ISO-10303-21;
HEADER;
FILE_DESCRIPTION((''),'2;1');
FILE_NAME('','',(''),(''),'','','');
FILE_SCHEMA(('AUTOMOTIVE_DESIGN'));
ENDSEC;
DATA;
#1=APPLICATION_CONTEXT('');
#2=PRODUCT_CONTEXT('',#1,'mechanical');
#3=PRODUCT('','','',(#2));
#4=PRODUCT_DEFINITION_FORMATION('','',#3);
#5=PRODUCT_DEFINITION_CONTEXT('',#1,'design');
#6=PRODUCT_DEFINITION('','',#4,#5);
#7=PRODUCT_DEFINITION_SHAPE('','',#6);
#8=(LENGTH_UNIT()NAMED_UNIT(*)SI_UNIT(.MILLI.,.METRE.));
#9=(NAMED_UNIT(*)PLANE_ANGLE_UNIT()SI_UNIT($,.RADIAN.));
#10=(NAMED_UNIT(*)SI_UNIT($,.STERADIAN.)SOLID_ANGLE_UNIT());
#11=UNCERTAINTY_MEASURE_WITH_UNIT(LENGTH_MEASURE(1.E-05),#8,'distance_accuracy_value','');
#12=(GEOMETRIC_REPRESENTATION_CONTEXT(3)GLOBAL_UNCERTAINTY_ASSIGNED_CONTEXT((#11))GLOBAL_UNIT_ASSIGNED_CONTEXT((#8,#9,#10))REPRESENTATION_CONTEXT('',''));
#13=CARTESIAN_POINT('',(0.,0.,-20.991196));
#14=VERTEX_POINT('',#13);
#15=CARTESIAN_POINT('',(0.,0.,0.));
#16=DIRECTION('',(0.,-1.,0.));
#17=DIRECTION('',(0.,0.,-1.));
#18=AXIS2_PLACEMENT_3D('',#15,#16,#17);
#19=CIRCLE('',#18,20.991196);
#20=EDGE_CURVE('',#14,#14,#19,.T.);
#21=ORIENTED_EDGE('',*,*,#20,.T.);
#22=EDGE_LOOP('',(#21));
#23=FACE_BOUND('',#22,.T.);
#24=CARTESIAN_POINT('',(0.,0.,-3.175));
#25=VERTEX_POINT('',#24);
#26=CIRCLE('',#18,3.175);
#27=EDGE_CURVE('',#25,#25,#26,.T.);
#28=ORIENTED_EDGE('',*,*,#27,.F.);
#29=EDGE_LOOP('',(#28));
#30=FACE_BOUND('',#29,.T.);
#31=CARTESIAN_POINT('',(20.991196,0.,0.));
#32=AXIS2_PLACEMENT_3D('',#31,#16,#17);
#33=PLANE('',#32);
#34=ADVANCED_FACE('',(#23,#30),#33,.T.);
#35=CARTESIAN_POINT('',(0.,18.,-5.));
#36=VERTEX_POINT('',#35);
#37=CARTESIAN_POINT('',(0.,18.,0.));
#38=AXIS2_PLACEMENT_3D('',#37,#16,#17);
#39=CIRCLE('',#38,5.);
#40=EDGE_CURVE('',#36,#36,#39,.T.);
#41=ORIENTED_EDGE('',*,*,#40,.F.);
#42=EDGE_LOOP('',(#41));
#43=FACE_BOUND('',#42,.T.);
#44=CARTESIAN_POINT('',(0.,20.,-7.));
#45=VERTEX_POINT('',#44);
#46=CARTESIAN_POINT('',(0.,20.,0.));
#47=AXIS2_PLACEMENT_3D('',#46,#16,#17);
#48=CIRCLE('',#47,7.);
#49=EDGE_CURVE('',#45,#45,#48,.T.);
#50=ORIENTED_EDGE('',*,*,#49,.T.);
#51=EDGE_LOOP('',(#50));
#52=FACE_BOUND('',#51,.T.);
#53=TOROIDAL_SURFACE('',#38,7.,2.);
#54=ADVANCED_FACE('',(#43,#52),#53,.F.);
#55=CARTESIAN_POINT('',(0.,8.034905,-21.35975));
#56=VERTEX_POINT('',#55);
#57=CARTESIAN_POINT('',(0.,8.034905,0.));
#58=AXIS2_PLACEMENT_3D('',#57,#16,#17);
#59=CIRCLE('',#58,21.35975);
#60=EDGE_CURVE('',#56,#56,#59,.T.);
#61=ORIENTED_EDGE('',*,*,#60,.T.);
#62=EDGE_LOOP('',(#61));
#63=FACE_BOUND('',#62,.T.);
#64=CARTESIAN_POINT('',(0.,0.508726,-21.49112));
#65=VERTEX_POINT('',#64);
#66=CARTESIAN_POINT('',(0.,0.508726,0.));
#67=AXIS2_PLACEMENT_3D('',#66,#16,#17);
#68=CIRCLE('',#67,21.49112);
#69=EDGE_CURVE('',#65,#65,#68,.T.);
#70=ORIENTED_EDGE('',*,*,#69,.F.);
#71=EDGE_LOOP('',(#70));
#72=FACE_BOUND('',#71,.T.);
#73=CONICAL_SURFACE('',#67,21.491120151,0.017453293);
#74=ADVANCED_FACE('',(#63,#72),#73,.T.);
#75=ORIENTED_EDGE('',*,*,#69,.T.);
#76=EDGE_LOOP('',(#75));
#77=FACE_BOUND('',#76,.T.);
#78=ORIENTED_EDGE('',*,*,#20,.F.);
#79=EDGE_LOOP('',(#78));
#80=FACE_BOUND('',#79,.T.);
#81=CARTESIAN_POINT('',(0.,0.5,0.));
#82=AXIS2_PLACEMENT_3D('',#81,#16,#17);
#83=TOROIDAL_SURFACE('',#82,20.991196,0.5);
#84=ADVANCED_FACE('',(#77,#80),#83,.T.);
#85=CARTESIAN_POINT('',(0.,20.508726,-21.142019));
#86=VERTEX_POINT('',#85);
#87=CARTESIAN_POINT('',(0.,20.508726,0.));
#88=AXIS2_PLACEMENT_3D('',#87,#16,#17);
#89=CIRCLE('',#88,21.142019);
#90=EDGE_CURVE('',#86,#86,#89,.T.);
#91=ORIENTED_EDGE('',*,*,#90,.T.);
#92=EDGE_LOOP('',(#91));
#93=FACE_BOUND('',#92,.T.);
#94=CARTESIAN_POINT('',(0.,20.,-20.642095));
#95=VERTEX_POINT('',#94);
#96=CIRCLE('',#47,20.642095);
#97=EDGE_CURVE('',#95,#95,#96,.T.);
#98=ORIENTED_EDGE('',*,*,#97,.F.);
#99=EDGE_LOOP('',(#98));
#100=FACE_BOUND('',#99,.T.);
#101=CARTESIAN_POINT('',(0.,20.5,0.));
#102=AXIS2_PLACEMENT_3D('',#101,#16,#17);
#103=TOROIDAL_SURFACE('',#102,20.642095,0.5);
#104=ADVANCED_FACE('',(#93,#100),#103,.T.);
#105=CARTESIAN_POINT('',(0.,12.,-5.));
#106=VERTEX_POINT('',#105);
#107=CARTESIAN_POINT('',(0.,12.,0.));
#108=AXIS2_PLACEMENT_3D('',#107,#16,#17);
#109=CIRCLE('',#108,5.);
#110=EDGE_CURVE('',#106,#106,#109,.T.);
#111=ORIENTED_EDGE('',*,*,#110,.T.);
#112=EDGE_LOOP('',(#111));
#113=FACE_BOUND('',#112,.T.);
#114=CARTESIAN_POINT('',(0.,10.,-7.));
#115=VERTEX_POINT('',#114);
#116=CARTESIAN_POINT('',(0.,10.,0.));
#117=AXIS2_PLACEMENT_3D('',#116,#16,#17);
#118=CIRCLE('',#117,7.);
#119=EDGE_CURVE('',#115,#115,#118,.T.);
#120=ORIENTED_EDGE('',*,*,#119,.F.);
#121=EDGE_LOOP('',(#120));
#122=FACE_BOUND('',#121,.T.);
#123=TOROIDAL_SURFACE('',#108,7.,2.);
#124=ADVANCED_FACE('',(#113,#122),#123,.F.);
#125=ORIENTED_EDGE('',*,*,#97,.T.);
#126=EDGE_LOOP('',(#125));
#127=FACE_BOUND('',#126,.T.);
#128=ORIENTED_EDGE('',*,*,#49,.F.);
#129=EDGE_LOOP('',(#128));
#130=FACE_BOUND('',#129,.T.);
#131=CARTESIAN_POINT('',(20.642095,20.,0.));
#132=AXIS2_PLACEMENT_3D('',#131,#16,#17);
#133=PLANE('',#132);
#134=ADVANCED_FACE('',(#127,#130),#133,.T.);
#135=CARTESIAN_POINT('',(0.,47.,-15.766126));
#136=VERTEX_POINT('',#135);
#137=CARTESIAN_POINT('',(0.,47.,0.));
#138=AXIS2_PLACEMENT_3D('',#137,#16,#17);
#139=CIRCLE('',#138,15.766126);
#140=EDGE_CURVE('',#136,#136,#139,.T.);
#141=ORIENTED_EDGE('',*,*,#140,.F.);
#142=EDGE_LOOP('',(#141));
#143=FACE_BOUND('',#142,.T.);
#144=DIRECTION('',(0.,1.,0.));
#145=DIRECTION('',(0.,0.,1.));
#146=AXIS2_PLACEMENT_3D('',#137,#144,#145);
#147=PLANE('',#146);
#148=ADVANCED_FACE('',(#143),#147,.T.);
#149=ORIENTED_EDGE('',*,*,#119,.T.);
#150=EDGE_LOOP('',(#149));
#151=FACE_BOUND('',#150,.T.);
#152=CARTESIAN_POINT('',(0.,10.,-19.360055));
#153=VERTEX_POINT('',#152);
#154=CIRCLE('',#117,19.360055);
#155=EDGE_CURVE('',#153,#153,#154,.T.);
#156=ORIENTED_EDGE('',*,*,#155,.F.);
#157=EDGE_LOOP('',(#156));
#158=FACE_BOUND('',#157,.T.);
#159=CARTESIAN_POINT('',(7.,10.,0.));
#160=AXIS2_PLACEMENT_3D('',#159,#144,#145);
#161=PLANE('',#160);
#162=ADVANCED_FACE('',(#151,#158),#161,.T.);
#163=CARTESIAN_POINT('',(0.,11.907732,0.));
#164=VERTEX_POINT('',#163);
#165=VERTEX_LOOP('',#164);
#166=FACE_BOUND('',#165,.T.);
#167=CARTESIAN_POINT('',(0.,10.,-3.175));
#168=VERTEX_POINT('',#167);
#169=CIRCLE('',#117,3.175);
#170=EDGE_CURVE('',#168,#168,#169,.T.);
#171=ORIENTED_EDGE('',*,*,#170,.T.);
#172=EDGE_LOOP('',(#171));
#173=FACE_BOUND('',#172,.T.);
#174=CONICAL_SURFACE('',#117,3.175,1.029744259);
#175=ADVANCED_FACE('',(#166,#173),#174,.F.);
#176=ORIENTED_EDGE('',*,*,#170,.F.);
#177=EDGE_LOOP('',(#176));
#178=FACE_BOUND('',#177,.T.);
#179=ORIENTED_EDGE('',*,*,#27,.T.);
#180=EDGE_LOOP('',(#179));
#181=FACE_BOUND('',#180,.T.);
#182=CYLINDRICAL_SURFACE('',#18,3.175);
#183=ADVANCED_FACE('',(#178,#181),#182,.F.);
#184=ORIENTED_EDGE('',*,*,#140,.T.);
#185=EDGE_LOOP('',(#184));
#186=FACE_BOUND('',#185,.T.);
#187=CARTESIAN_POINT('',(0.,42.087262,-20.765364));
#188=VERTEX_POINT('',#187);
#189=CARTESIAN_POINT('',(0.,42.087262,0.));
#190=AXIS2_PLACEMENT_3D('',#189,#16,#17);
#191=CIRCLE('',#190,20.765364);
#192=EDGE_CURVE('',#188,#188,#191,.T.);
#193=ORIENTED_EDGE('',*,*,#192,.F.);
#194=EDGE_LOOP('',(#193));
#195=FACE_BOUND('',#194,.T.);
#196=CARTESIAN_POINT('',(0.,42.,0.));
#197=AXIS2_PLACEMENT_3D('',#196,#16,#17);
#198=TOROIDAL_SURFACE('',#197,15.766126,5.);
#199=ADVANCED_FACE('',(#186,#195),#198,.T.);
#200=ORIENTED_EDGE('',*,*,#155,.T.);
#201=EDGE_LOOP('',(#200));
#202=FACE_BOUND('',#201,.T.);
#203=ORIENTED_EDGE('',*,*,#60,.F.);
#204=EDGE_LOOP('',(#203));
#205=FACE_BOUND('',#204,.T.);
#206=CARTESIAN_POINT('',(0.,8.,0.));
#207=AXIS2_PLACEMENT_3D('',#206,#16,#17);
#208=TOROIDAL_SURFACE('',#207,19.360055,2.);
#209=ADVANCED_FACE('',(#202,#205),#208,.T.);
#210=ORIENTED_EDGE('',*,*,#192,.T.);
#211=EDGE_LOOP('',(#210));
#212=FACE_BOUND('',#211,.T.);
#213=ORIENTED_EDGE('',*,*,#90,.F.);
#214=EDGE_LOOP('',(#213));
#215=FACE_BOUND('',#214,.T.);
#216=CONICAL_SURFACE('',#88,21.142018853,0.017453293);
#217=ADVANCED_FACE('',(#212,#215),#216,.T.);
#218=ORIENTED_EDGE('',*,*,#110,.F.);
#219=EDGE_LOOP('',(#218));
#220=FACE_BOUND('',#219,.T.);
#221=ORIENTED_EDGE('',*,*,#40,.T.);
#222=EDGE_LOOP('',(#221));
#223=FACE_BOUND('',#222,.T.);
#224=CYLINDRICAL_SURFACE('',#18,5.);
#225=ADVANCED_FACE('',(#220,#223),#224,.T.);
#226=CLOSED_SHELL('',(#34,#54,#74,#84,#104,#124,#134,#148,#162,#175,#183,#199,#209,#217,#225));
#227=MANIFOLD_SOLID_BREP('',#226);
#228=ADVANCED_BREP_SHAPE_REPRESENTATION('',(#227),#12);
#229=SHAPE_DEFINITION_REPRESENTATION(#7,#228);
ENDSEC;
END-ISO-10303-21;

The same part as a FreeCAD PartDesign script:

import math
import FreeCAD as App
import Part
import Sketcher
from FreeCAD import Vector
Q = App.Units.Quantity

doc = App.newDocument("Part")
body = doc.addObject("PartDesign::Body", "Body")

# Sketch on XY plane
sketch1 = body.newObject("Sketcher::SketchObject", "Sketch")
sketch1.AttachmentSupport = (doc.getObject("XY_Plane"), [""])
sketch1.MapMode = "FlatFace"
sketch1.addGeometry([
    Part.LineSegment(Vector(15.8, 47, 0), Vector(0, 47, 0)),  # 0
    Part.LineSegment(Vector(0, 47, 0), Vector(0, 0, 0)),  # 1
    Part.LineSegment(Vector(0, 0, 0), Vector(21, 0, 0)),  # 2
    Part.ArcOfCircle(Part.Circle(Vector(21, 0.5, 0), Vector(0, 0, 1), 0.5), math.radians(-90), math.radians(1)),  # 3
    Part.LineSegment(Vector(21.5, 0.5, 0), Vector(21.4, 8, 0)),  # 4
    Part.ArcOfCircle(Part.Circle(Vector(19.4, 8, 0), Vector(0, 0, 1), 2), math.radians(1), math.radians(90)),  # 5
    Part.LineSegment(Vector(19.4, 10, 0), Vector(7, 10, 0)),  # 6
    Part.ArcOfCircle(Part.Circle(Vector(7, 12, 0), Vector(0, 0, 1), 2), math.radians(-180), math.radians(-90)),  # 7
    Part.LineSegment(Vector(5, 12, 0), Vector(5, 18, 0)),  # 8
    Part.ArcOfCircle(Part.Circle(Vector(7, 18, 0), Vector(0, 0, 1), 2), math.radians(90), math.radians(180)),  # 9
    Part.LineSegment(Vector(7, 20, 0), Vector(20.6, 20, 0)),  # 10
    Part.ArcOfCircle(Part.Circle(Vector(20.6, 20.5, 0), Vector(0, 0, 1), 0.5), math.radians(-90), math.radians(1)),  # 11
    Part.LineSegment(Vector(21.1, 20.5, 0), Vector(20.8, 42.1, 0)),  # 12
    Part.ArcOfCircle(Part.Circle(Vector(15.8, 42, 0), Vector(0, 0, 1), 5), math.radians(1), math.radians(90)),  # 13
], False)
sketch1.addConstraint([
    Sketcher.Constraint("Coincident", 0, 2, 1, 1),
    Sketcher.Constraint("Coincident", 1, 2, 2, 1),
    Sketcher.Constraint("Tangent", 2, 2, 3, 1),
    Sketcher.Constraint("Tangent", 3, 2, 4, 1),
    Sketcher.Constraint("Tangent", 4, 2, 5, 1),
    Sketcher.Constraint("Tangent", 5, 2, 6, 1),
    Sketcher.Constraint("Tangent", 6, 2, 7, 2),
    Sketcher.Constraint("Tangent", 7, 1, 8, 1),
    Sketcher.Constraint("Tangent", 8, 2, 9, 2),
    Sketcher.Constraint("Tangent", 9, 1, 10, 1),
    Sketcher.Constraint("Tangent", 10, 2, 11, 1),
    Sketcher.Constraint("Tangent", 11, 2, 12, 1),
    Sketcher.Constraint("Tangent", 12, 2, 13, 1),
    Sketcher.Constraint("Tangent", 13, 2, 0, 1),
    Sketcher.Constraint("Horizontal", 0),
    Sketcher.Constraint("Vertical", 1),
    Sketcher.Constraint("Horizontal", 2),
    Sketcher.Constraint("Horizontal", 6),
    Sketcher.Constraint("Vertical", 8),
    Sketcher.Constraint("Horizontal", 10),
    Sketcher.Constraint("Coincident", 1, 2, -1, 1),
    Sketcher.Constraint("Equal", 5, 7),
    Sketcher.Constraint("Equal", 7, 9),
    Sketcher.Constraint("Equal", 3, 11),
    Sketcher.Constraint("Parallel", 4, 12),
    Sketcher.Constraint("Radius", 5, Q("2 mm")),
    Sketcher.Constraint("Radius", 13, Q("5 mm")),
    Sketcher.Constraint("Radius", 3, Q("0.5 mm")),
    Sketcher.Constraint("DistanceY", 1, 2, 1, 1, Q("47 mm")),
    Sketcher.Constraint("DistanceY", 8, 1, 8, 2, Q("6 mm")),
    Sketcher.Constraint("Angle", 4, Q("91 deg")),
    Sketcher.Constraint("DistanceY", -1, 1, 5, 3, Q("8 mm")),
    Sketcher.Constraint("DistanceX", -1, 1, 7, 3, Q("7 mm")),
    Sketcher.Constraint("DistanceX", 11, 3, 3, 3, Q("0.349101 mm")),
    Sketcher.Constraint("DistanceX", 0, 2, 0, 1, Q("15.766126 mm")),
])
revolution = body.newObject("PartDesign::Revolution", "Revolution")
revolution.Profile = sketch1
revolution.ReferenceAxis = (sketch1, ["V_Axis"])
revolution.Angle = 360

# Sketch on XZ plane
sketch2 = body.newObject("Sketcher::SketchObject", "Sketch001")
sketch2.AttachmentSupport = (doc.getObject("XZ_Plane"), [""])
sketch2.MapMode = "FlatFace"
sketch2.addGeometry(Part.Circle(Vector(0, 0, 0), Vector(0, 0, 1), 3.2), False)
sketch2.addConstraint([
    Sketcher.Constraint("Coincident", 0, 3, -1, 1),
    Sketcher.Constraint("Diameter", 0, Q("6.35 mm")),
])
doc.recompute()
hole = body.newObject("PartDesign::Hole", "Hole")
hole.Profile = sketch2
hole.ThreadType = "None"
hole.Diameter = 6.35
hole.DepthType = "Dimension"
hole.Depth = 10
hole.DrillPoint = "Angled"
hole.DrillPointAngle = 118

doc.recompute()
